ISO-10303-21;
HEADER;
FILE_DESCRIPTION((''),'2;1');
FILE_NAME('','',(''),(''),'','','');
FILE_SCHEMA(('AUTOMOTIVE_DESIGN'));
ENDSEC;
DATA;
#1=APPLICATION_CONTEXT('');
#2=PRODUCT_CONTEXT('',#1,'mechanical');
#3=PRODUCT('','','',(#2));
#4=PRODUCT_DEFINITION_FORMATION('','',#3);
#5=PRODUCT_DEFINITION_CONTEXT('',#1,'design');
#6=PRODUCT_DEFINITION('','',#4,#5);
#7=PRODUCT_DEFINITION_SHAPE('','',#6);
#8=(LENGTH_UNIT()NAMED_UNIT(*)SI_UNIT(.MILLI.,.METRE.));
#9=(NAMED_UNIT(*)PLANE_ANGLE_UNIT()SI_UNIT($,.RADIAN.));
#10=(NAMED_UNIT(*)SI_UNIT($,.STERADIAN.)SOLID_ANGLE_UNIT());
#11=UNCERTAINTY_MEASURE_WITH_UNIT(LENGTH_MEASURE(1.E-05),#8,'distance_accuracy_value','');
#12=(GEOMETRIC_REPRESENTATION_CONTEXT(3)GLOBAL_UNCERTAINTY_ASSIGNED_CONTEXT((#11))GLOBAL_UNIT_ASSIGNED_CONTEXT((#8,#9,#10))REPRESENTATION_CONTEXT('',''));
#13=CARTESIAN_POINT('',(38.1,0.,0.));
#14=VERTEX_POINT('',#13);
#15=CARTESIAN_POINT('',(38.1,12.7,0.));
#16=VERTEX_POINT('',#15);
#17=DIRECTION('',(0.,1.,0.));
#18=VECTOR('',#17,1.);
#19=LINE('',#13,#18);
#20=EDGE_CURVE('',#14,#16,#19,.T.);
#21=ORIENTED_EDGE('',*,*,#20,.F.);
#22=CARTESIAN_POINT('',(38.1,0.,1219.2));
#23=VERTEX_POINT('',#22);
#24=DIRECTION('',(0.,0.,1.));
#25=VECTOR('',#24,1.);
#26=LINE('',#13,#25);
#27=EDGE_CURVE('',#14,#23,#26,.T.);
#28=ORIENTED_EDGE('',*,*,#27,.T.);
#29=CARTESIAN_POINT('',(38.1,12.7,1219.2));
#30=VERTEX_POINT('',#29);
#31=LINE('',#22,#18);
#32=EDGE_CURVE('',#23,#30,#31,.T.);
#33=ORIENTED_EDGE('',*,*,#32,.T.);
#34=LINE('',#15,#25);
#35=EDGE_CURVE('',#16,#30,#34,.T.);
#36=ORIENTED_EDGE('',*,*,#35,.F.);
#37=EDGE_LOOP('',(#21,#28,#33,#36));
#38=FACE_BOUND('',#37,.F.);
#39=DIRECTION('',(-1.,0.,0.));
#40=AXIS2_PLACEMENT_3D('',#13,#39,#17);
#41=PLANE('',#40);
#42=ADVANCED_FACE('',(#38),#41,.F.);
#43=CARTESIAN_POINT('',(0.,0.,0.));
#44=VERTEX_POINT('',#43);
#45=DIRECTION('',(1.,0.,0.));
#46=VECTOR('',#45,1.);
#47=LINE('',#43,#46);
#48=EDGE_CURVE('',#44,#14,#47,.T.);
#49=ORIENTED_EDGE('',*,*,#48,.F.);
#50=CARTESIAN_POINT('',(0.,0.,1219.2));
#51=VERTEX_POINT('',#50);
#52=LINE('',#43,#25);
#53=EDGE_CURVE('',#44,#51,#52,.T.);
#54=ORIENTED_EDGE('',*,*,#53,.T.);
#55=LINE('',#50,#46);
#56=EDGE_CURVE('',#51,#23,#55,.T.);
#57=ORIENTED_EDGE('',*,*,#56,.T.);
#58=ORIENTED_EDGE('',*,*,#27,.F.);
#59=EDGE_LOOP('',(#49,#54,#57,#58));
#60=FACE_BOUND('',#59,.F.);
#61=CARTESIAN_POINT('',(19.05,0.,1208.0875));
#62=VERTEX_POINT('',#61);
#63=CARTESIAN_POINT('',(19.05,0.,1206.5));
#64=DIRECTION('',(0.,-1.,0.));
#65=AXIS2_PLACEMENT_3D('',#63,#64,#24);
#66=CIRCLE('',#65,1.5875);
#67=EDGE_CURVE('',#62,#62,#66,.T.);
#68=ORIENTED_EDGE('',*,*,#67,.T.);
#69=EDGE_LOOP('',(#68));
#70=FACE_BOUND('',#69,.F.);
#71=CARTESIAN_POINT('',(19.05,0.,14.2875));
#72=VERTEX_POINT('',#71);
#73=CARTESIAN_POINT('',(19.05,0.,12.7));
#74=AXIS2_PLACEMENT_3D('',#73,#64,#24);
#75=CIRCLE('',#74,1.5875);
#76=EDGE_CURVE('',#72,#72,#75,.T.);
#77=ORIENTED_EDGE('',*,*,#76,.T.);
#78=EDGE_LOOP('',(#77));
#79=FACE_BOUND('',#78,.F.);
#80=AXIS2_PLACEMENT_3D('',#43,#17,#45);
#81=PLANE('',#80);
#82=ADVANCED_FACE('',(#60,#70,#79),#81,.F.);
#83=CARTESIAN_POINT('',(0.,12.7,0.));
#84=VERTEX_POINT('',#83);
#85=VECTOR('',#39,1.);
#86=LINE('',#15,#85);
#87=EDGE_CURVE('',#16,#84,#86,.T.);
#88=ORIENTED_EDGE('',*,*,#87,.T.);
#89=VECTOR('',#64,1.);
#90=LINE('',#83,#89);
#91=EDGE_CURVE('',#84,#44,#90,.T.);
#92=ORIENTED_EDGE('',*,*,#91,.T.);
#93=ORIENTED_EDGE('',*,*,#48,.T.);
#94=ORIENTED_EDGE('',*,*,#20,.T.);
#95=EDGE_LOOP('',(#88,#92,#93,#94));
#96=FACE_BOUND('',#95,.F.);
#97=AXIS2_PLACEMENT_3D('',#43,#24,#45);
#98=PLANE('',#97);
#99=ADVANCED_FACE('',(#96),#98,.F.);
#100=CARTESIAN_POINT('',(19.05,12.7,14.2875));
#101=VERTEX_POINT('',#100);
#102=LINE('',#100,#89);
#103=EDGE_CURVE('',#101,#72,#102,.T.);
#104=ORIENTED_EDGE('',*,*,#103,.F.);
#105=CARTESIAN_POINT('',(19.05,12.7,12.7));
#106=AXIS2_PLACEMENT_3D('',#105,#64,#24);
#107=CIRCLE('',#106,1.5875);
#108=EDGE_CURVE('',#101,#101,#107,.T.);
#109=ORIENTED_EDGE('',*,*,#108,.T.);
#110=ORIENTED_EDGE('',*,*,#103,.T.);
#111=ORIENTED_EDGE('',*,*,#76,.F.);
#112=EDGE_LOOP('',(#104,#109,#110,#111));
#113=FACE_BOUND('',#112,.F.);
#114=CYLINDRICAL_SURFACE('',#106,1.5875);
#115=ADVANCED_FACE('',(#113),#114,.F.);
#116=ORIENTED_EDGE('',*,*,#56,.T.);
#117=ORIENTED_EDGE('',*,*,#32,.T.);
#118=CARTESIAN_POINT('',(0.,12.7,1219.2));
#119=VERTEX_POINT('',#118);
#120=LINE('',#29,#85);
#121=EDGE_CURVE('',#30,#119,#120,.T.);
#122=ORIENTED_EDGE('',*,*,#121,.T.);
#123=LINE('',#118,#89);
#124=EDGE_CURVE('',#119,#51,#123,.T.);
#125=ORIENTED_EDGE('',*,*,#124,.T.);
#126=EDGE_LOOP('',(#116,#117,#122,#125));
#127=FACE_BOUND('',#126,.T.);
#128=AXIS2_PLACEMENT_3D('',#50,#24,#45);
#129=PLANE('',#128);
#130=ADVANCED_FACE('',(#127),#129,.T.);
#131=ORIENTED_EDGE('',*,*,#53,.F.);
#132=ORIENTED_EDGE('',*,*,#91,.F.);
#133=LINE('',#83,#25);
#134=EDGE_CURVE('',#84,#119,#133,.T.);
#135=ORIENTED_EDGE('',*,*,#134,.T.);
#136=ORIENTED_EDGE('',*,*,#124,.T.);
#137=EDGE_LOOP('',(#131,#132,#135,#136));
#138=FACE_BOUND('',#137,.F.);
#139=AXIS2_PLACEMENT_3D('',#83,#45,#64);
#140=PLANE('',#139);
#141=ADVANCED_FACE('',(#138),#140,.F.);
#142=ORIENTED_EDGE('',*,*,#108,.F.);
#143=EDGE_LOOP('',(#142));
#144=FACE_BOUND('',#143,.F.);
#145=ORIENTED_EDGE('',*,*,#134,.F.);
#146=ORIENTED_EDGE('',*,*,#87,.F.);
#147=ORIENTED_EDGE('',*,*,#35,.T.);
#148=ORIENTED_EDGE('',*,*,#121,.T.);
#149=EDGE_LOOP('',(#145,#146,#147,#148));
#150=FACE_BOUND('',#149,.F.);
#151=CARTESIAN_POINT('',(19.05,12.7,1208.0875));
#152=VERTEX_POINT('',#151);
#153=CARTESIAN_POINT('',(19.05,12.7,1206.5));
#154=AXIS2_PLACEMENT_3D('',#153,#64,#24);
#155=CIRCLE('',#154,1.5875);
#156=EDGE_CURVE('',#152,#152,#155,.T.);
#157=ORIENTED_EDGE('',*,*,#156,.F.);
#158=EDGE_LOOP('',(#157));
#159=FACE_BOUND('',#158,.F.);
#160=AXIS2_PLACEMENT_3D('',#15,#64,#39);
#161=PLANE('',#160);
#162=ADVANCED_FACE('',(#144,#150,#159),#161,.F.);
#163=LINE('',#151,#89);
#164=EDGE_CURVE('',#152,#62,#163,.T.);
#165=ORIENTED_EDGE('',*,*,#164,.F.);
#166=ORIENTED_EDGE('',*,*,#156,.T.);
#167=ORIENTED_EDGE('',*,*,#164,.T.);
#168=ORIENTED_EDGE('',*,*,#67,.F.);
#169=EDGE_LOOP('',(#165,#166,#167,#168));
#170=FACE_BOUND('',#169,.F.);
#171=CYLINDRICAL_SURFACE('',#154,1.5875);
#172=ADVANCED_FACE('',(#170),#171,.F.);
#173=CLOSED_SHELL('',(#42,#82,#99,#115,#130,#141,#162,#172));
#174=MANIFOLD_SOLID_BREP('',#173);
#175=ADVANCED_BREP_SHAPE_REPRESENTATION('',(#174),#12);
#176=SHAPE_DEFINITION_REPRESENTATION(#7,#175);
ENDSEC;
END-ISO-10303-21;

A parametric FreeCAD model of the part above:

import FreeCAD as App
import Part
import Sketcher
Q = App.Units.Quantity

doc = App.newDocument("Part")
params = doc.addObject("Spreadsheet::Sheet", "Params")
for row, (alias, value) in enumerate([
    ("sketch1_width", "1.5 in"),
    ("sketch1_height", "0.5 in"),
    ("pad1_length", "48 in"),
    ("sketch2_diameter", "0.125 in"),
    ("hole_diameter", "0.125 in"),
    ("sketch3_diameter", "0.125 in"),
    ("hole2_diameter", "0.125 in"),
], start=1):
    params.set(f"A{row}", alias)
    params.set(f"B{row}", "=" + value)
    params.setAlias(f"B{row}", alias)

body = doc.addObject("PartDesign::Body", "Body")

# Sketch on XY plane
sketch1 = body.newObject("Sketcher::SketchObject", "Sketch")
sketch1.AttachmentSupport = (doc.getObject("XY_Plane"), [""])
sketch1.MapMode = "FlatFace"
sketch1.addGeometry(Part.LineSegment(App.Vector(0, 12.7, 0), App.Vector(0, 0, 0)), False)
sketch1.addGeometry(Part.LineSegment(App.Vector(0, 0, 0), App.Vector(38.1, 0, 0)), False)
sketch1.addGeometry(Part.LineSegment(App.Vector(38.1, 0, 0), App.Vector(38.1, 12.7, 0)), False)
sketch1.addGeometry(Part.LineSegment(App.Vector(38.1, 12.7, 0), App.Vector(0, 12.7, 0)), False)
sketch1.addConstraint(Sketcher.Constraint("Coincident", 0, 2, 1, 1))
sketch1.addConstraint(Sketcher.Constraint("Coincident", 1, 2, 2, 1))
sketch1.addConstraint(Sketcher.Constraint("Coincident", 2, 2, 3, 1))
sketch1.addConstraint(Sketcher.Constraint("Coincident", 3, 2, 0, 1))
sketch1.addConstraint(Sketcher.Constraint("Vertical", 0))
sketch1.addConstraint(Sketcher.Constraint("Horizontal", 1))
sketch1.addConstraint(Sketcher.Constraint("Vertical", 2))
sketch1.addConstraint(Sketcher.Constraint("Horizontal", 3))
sketch1.addConstraint(Sketcher.Constraint("Coincident", 0, 2, -1, 1))
sketch1.addConstraint(Sketcher.Constraint("DistanceX", 1, 1, 1, 2, Q("1.5 in")))
sketch1.addConstraint(Sketcher.Constraint("DistanceY", 0, 2, 0, 1, Q("0.5 in")))
sketch1.setExpression("Constraints[9]", "Params.sketch1_width")
sketch1.setExpression("Constraints[10]", "Params.sketch1_height")
pad1 = body.newObject("PartDesign::Pad", "Pad")
pad1.Profile = sketch1
pad1.setExpression("Length", "Params.pad1_length")

# Sketch on XZ plane
sketch2 = body.newObject("Sketcher::SketchObject", "Sketch001")
sketch2.AttachmentSupport = (doc.getObject("XZ_Plane"), [""])
sketch2.MapMode = "FlatFace"
sketch2.AttachmentOffset = App.Placement(App.Vector(0, 0, -0.5 * 25.4), App.Rotation())
sketch2.addGeometry(Part.Circle(App.Vector(19.05, 12.7, 0), App.Vector(0, 0, 1), 1.5875), False)
sketch2.addConstraint(Sketcher.Constraint("Diameter", 0, Q("0.125 in")))
sketch2.addConstraint(Sketcher.Constraint("DistanceY", -1, 1, 0, 3, Q("0.5 in")))
sketch2.addConstraint(Sketcher.Constraint("DistanceX", -1, 1, 0, 3, Q("0.75 in")))
sketch2.setExpression("Constraints[0]", "Params.sketch2_diameter")
doc.recompute()
hole = body.newObject("PartDesign::Hole", "Hole")
hole.Profile = sketch2
hole.ThreadType = "None"
hole.setExpression("Diameter", "Params.hole_diameter")
hole.DepthType = "ThroughAll"
hole.Reversed = True

# Sketch on XZ plane
sketch3 = body.newObject("Sketcher::SketchObject", "Sketch002")
sketch3.AttachmentSupport = (doc.getObject("XZ_Plane"), [""])
sketch3.MapMode = "FlatFace"
sketch3.AttachmentOffset = App.Placement(App.Vector(0, 0, -0.5 * 25.4), App.Rotation())
sketch3.addGeometry(Part.Circle(App.Vector(19.05, 1206.5, 0), App.Vector(0, 0, 1), 1.5875), False)
sketch3.addConstraint(Sketcher.Constraint("Diameter", 0, Q("0.125 in")))
sketch3.addConstraint(Sketcher.Constraint("DistanceY", -1, 1, 0, 3, Q("47.5 in")))
sketch3.addConstraint(Sketcher.Constraint("DistanceX", -1, 1, 0, 3, Q("0.75 in")))
sketch3.setExpression("Constraints[0]", "Params.sketch3_diameter")
doc.recompute()
hole2 = body.newObject("PartDesign::Hole", "Hole001")
hole2.Profile = sketch3
hole2.ThreadType = "None"
hole2.setExpression("Diameter", "Params.hole2_diameter")
hole2.DepthType = "ThroughAll"
hole2.Reversed = True

doc.recompute()
